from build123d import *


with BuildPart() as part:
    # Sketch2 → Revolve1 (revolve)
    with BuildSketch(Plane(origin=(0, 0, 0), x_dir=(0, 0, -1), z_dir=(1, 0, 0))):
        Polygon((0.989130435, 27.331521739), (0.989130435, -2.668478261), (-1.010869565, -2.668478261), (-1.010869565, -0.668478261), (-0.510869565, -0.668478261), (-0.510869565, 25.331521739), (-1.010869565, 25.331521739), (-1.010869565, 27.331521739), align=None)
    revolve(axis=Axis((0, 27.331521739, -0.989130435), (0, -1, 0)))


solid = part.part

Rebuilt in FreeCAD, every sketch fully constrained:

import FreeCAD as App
import Part
import Sketcher
from FreeCAD import Vector
Q = App.Units.Quantity


def add_polygon(sketch, points):
    """Adds a closed chain of lines whose ends are joined by coincident constraints."""
    first, n = sketch.GeometryCount, len(points)
    for a, b in zip(points, points[1:] + points[:1]):
        sketch.addGeometry(Part.LineSegment(App.Vector(*a, 0), App.Vector(*b, 0)), False)
    for i in range(n):
        sketch.addConstraint(Sketcher.Constraint("Coincident", first + i, 2, first + (i + 1) % n, 1))

doc = App.newDocument("Part")
body = doc.addObject("PartDesign::Body", "Body")

# Sketch on YZ plane
sketch1 = body.newObject("Sketcher::SketchObject", "Sketch")
sketch1.AttachmentSupport = (doc.getObject("YZ_Plane"), [""])
sketch1.MapMode = "FlatFace"
add_polygon(sketch1, [(-2.67, -0.99), (27.33, -0.99), (27.33, 1.01), (25.33, 1.01), (25.33, 0.51), (-0.67, 0.51), (-0.67, 1.01), (-2.67, 1.01)])  # lines 0-7
sketch1.addGeometry(Part.LineSegment(Vector(27.33, -0.99, 0), Vector(-2.67, -0.99, 0)), True)  # axis
sketch1.addConstraint([
    Sketcher.Constraint("Horizontal", 0),
    Sketcher.Constraint("Vertical", 1),
    Sketcher.Constraint("Horizontal", 2),
    Sketcher.Constraint("Vertical", 3),
    Sketcher.Constraint("Horizontal", 4),
    Sketcher.Constraint("Vertical", 5),
    Sketcher.Constraint("Horizontal", 6),
    Sketcher.Constraint("Vertical", 7),
    Sketcher.Constraint("Horizontal", 8),
    Sketcher.Constraint("Coincident", 8, 1, 0, 2),
    Sketcher.Constraint("Horizontal", 2, 2, 5, 2),
    Sketcher.Constraint("Vertical", 6, 2, 8, 2),
    Sketcher.Constraint("Equal", 2, 6),
    Sketcher.Constraint("Equal", 6, 1),
    Sketcher.Constraint("DistanceX", 0, 1, 0, 2, Q("30 mm")),
    Sketcher.Constraint("DistanceX", 2, 2, 2, 1, Q("2 mm")),
    Sketcher.Constraint("DistanceY", 3, 2, 3, 1, Q("0.5 mm")),
    Sketcher.Constraint("DistanceX", -1, 1, 0, 2, Q("27.331522 mm")),
    Sketcher.Constraint("DistanceY", 0, 2, -1, 1, Q("0.98913 mm")),
])
revolution = body.newObject("PartDesign::Revolution", "Revolution")
revolution.Profile = sketch1
revolution.ReferenceAxis = (sketch1, ["Axis0"])
revolution.Angle = 360

doc.recompute()
